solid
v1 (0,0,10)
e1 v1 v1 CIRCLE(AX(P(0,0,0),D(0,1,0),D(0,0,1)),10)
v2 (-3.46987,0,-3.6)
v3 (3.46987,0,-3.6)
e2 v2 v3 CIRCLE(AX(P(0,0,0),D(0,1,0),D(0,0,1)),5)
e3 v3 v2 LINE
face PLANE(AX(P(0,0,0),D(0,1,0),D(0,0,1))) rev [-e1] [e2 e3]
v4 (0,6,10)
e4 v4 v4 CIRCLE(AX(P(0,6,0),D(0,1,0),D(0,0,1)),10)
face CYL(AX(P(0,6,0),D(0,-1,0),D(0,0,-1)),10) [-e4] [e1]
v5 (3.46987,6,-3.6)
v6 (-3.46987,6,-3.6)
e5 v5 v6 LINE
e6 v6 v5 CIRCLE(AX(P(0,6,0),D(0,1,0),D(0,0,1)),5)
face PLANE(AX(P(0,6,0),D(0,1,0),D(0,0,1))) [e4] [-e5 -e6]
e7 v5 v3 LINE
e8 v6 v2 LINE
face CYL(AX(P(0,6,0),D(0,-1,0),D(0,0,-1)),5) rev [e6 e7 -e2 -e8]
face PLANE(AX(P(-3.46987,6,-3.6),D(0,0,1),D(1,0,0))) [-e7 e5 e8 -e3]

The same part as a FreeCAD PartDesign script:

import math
import FreeCAD as App
import Part
import Sketcher

doc = App.newDocument("Part")
body = doc.addObject("PartDesign::Body", "Body")

# Sketch on XZ plane
sketch1 = doc.addObject("Sketcher::SketchObject", "Sketch")
body.addObject(sketch1)
sketch1.AttachmentSupport = (doc.XZ_Plane, [""])
sketch1.MapMode = "FlatFace"
sketch1.addGeometry(Part.Circle(App.Vector(0, 0, 0), App.Vector(0, 0, 1), 10), False)
sketch1.addGeometry(Part.ArcOfCircle(Part.Circle(App.Vector(0, 0, 0), App.Vector(0, 0, 1), 5), math.radians(-46), math.radians(226)), False)
sketch1.addGeometry(Part.LineSegment(App.Vector(-3, -4, 0), App.Vector(3, -4, 0)), False)
sketch1.addConstraint(Sketcher.Constraint("Coincident", 1, 1, 2, 2))
sketch1.addConstraint(Sketcher.Constraint("Coincident", 2, 1, 1, 2))
sketch1.addConstraint(Sketcher.Constraint("Horizontal", 2))
sketch1.addConstraint(Sketcher.Constraint("Coincident", 0, 3, -1, 1))
sketch1.addConstraint(Sketcher.Constraint("Coincident", 1, 3, -1, 1))
sketch1.addConstraint(Sketcher.Constraint("Diameter", 0, 20.0))
sketch1.addConstraint(Sketcher.Constraint("Radius", 1, 5.0))
sketch1.addConstraint(Sketcher.Constraint("DistanceY", 1, 1, -1, 1, 3.6))
pad1 = doc.addObject("PartDesign::Pad", "Pad")
body.addObject(pad1)
pad1.Profile = sketch1
pad1.Length = 6
pad1.Reversed = True

doc.recompute()
